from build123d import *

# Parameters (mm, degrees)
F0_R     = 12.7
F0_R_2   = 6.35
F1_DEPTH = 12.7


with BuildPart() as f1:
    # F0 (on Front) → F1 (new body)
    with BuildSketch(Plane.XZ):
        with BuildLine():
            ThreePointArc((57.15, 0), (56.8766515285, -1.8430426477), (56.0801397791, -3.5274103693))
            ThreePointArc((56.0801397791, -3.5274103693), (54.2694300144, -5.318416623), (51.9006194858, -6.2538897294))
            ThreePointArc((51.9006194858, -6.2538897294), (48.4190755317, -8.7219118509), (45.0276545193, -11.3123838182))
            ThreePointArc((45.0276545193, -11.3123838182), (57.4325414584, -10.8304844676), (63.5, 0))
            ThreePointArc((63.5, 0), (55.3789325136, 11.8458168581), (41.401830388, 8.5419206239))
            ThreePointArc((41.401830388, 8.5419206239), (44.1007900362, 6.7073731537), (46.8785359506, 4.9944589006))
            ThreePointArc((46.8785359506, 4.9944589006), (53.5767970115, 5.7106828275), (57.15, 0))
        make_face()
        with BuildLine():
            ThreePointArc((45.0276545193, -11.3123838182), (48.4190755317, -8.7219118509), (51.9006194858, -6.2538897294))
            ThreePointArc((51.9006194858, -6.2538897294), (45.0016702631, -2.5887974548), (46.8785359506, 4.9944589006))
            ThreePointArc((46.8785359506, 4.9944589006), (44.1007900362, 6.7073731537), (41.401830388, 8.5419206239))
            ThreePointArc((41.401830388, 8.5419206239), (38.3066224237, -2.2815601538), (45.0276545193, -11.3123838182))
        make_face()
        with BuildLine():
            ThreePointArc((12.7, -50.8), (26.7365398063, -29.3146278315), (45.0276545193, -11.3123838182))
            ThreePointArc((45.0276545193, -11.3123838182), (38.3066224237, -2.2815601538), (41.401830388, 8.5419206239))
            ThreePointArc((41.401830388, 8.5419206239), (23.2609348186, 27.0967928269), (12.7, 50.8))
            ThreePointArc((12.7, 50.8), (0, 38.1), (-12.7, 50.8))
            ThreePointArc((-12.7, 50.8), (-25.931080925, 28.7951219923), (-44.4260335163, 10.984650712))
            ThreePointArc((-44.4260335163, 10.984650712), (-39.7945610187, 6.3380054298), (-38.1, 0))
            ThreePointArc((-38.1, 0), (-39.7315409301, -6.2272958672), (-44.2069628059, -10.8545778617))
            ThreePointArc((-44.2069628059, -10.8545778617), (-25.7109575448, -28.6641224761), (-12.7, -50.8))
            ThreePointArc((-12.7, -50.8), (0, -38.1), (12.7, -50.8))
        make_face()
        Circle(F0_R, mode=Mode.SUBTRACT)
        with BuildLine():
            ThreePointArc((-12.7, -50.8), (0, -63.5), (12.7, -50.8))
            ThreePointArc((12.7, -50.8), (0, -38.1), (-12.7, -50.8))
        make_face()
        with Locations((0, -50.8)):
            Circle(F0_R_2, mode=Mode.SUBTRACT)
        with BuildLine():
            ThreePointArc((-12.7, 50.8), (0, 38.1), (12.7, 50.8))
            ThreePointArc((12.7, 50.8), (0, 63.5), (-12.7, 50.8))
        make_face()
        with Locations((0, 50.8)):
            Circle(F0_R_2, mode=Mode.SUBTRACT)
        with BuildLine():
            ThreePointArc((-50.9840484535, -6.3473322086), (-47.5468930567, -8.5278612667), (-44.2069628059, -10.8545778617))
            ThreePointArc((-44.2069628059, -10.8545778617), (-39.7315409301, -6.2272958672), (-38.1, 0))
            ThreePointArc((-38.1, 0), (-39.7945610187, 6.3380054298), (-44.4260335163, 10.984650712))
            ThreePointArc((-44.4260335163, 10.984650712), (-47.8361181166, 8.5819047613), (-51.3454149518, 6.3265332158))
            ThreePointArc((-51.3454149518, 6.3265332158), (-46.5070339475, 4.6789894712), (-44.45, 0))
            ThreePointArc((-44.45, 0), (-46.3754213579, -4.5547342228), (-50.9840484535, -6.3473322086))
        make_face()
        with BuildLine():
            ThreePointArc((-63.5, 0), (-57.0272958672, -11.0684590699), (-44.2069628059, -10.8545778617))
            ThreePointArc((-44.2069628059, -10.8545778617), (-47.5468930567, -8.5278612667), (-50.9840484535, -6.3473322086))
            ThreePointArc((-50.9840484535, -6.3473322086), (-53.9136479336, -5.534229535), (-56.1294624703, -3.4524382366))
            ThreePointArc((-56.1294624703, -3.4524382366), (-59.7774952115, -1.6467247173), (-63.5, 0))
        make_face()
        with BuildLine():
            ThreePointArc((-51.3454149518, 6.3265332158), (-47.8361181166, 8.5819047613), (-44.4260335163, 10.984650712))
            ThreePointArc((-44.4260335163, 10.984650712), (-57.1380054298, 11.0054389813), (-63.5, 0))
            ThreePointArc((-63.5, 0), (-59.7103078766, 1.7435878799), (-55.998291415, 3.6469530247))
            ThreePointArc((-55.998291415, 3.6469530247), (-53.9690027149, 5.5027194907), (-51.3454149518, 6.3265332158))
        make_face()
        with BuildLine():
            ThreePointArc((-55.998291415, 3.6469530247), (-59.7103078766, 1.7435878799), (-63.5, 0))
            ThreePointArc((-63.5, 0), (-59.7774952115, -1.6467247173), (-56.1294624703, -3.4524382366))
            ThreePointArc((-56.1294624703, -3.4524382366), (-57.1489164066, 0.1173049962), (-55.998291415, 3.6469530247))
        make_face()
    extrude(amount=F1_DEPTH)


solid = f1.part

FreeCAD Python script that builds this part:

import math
import FreeCAD as App
import Part
import Sketcher
from FreeCAD import Vector
Q = App.Units.Quantity

doc = App.newDocument("Part")
body = doc.addObject("PartDesign::Body", "Body")

sketch1 = body.newObject("Sketcher::SketchObject", "Sketch")
sketch1.AttachmentSupport = (doc.getObject("XZ_Plane"), [""])
sketch1.MapMode = "FlatFace"
sketch1.addGeometry([
    Part.ArcOfCircle(Part.Circle(Vector(-50.8, 0, 0), Vector(0, 0, 1), 12.7), math.radians(59.87507), math.radians(180)),
    Part.ArcOfCircle(Part.Circle(Vector(-50.8, 0, 0), Vector(0, 0, 1), 12.7), math.radians(180), math.radians(301.274367)),
    Part.ArcOfCircle(Part.Circle(Vector(-99.808877, -87.108877, 0), Vector(0, 0, 1), 94.373148), math.radians(22.627437), math.radians(53.901804)),
    Part.ArcOfCircle(Part.Circle(Vector(0, -50.8, 0), Vector(0, 0, 1), 12.7), math.radians(180), math.radians(360)),
    Part.ArcOfCircle(Part.Circle(Vector(119.423428, -105.195372, 0), Vector(0, 0, 1), 119.786254), math.radians(128.39439), math.radians(152.992725)),
    Part.ArcOfCircle(Part.Circle(Vector(50.8, 0, 0), Vector(0, 0, 1), 12.7), math.radians(-117.033758), math.radians(0)),
    Part.ArcOfCircle(Part.Circle(Vector(50.8, 0, 0), Vector(0, 0, 1), 12.7), math.radians(0), math.radians(137.732553)),
    Part.ArcOfCircle(Part.Circle(Vector(84.052842, 68.386862, 0), Vector(0, 0, 1), 73.488269), math.radians(-166.153872), math.radians(-125.477169)),
    Part.ArcOfCircle(Part.Circle(Vector(0, 50.8, 0), Vector(0, 0, 1), 12.7), math.radians(0), math.radians(180)),
    Part.ArcOfCircle(Part.Circle(Vector(-102.536785, 89.836785, 0), Vector(0, 0, 1), 97.951613), math.radians(-53.611326), math.radians(-23.486396)),
    Part.Circle(Vector(0, -50.8, 0), Vector(0, 0, 1), 6.35),
    Part.ArcOfCircle(Part.Circle(Vector(50.8, 0, 0), Vector(0, 0, 1), 6.35), math.radians(-33.745002), math.radians(0)),
    Part.ArcOfCircle(Part.Circle(Vector(50.8, 0, 0), Vector(0, 0, 1), 6.35), math.radians(-80.018749), math.radians(-33.745002)),
    Part.ArcOfCircle(Part.Circle(Vector(50.8, 0, 0), Vector(0, 0, 1), 6.35), math.radians(128.13769), math.radians(279.981251)),
    Part.ArcOfCircle(Part.Circle(Vector(50.8, 0, 0), Vector(0, 0, 1), 6.35), math.radians(0), math.radians(128.13769)),
    Part.ArcOfCircle(Part.Circle(Vector(-50.8, 0, 0), Vector(0, 0, 1), 6.35), math.radians(-147.064739), math.radians(-91.660894)),
    Part.ArcOfCircle(Part.Circle(Vector(-50.8, 0, 0), Vector(0, 0, 1), 6.35), math.radians(144.947743), math.radians(212.935261)),
    Part.ArcOfCircle(Part.Circle(Vector(-50.8, 0, 0), Vector(0, 0, 1), 6.35), math.radians(94.927327), math.radians(144.947743)),
    Part.ArcOfCircle(Part.Circle(Vector(-50.8, 0, 0), Vector(0, 0, 1), 6.35), math.radians(0), math.radians(94.927327)),
    Part.ArcOfCircle(Part.Circle(Vector(-50.8, 0, 0), Vector(0, 0, 1), 6.35), math.radians(-91.660894), math.radians(0)),
    Part.Circle(Vector(0, 0, 0), Vector(0, 0, 1), 12.7),
    Part.Circle(Vector(0, 50.8, 0), Vector(0, 0, 1), 6.35),
], False)
sketch1.addConstraint([
    Sketcher.Constraint("Tangent", 0, 2, 1, 1),
    Sketcher.Constraint("Coincident", 1, 2, 2, 2),
    Sketcher.Constraint("Coincident", 2, 1, 3, 1),
    Sketcher.Constraint("Coincident", 3, 2, 4, 2),
    Sketcher.Constraint("Coincident", 4, 1, 5, 1),
    Sketcher.Constraint("Tangent", 5, 2, 6, 1),
    Sketcher.Constraint("Coincident", 6, 2, 7, 2),
    Sketcher.Constraint("Coincident", 7, 1, 8, 1),
    Sketcher.Constraint("Coincident", 8, 2, 9, 2),
    Sketcher.Constraint("Coincident", 9, 1, 0, 1),
    Sketcher.Constraint("Tangent", 11, 1, 12, 2),
    Sketcher.Constraint("Tangent", 12, 1, 13, 2),
    Sketcher.Constraint("Tangent", 13, 1, 14, 2),
    Sketcher.Constraint("Tangent", 14, 1, 11, 2),
    Sketcher.Constraint("Tangent", 15, 1, 16, 2),
    Sketcher.Constraint("Tangent", 16, 1, 17, 2),
    Sketcher.Constraint("Tangent", 17, 1, 18, 2),
    Sketcher.Constraint("Tangent", 18, 1, 19, 2),
    Sketcher.Constraint("Tangent", 19, 1, 15, 2),
    Sketcher.Constraint("Coincident", 20, 3, -1, 1),
    Sketcher.Constraint("Coincident", 10, 3, 3, 3),
    Sketcher.Constraint("Coincident", 11, 3, 5, 3),
    Sketcher.Constraint("Coincident", 15, 3, 0, 3),
    Sketcher.Constraint("Coincident", 17, 3, 0, 3),
    Sketcher.Constraint("Coincident", 21, 3, 8, 3),
    Sketcher.Constraint("Equal", 0, 1),
    Sketcher.Constraint("Equal", 1, 3),
    Sketcher.Constraint("Equal", 3, 5),
    Sketcher.Constraint("Equal", 5, 6),
    Sketcher.Constraint("Equal", 6, 8),
    Sketcher.Constraint("Equal", 10, 11),
    Sketcher.Constraint("Equal", 11, 12),
    Sketcher.Constraint("Equal", 14, 15),
    Sketcher.Constraint("Equal", 8, 20),
    Sketcher.Constraint("Equal", 19, 21),
    Sketcher.Constraint("Symmetric", 0, 3, 5, 3, -1, 1),
    Sketcher.Constraint("Symmetric", 3, 3, 8, 3, -1, 1),
    Sketcher.Constraint("Symmetric", 2, 1, 3, 2, -2),
    Sketcher.Constraint("PointOnObject", 0, 3, -1),
    Sketcher.Constraint("PointOnObject", 0, 2, -1),
    Sketcher.Constraint("PointOnObject", 5, 2, -1),
    Sketcher.Constraint("PointOnObject", 14, 1, -1),
    Sketcher.Constraint("PointOnObject", 18, 1, -1),
    Sketcher.Constraint("Horizontal", 10, 3, 2, 1),
    Sketcher.Constraint("Horizontal", 21, 3, 7, 1),
    Sketcher.Constraint("Horizontal", 7, 1, 8, 2),
    Sketcher.Constraint("Diameter", 20, Q("1 in")),
    Sketcher.Constraint("Diameter", 10, Q("0.5 in")),
    Sketcher.Constraint("DistanceX", 0, 3, -1, 1, Q("2 in")),
    Sketcher.Constraint("DistanceY", 3, 3, -1, 1, Q("2 in")),
    Sketcher.Constraint("Radius", 7, 73.488269),
    Sketcher.Constraint("Radius", 2, 94.373148),
    Sketcher.Constraint("Radius", 4, 119.786254),
    Sketcher.Constraint("Radius", 9, 97.951613),
    Sketcher.Constraint("DistanceX", -1, 1, 4, 3, 119.423428),
    Sketcher.Constraint("DistanceX", -1, 1, 7, 3, 84.052842),
    Sketcher.Constraint("DistanceY", -1, 1, 9, 1, 10.984651),
    Sketcher.Constraint("DistanceX", -1, 1, 11, 1, 56.08014),
    Sketcher.Constraint("DistanceX", -1, 1, 12, 1, 51.900619),
    Sketcher.Constraint("DistanceY", -1, 1, 13, 1, 4.994459),
    Sketcher.Constraint("DistanceY", 15, 1, -1, 1, 3.452438),
    Sketcher.Constraint("DistanceX", 16, 1, -1, 1, 55.998291),
    Sketcher.Constraint("DistanceX", 19, 1, -1, 1, 50.984048),
    Sketcher.Constraint("DistanceX", 9, 3, 2, 3, 2.727908),
    Sketcher.Constraint("DistanceY", 16, 1, 17, 1, 2.67958),
])
pad1 = body.newObject("PartDesign::Pad", "Pad")
pad1.Profile = sketch1
pad1.Length = Q("0.5 in")

doc.recompute()
